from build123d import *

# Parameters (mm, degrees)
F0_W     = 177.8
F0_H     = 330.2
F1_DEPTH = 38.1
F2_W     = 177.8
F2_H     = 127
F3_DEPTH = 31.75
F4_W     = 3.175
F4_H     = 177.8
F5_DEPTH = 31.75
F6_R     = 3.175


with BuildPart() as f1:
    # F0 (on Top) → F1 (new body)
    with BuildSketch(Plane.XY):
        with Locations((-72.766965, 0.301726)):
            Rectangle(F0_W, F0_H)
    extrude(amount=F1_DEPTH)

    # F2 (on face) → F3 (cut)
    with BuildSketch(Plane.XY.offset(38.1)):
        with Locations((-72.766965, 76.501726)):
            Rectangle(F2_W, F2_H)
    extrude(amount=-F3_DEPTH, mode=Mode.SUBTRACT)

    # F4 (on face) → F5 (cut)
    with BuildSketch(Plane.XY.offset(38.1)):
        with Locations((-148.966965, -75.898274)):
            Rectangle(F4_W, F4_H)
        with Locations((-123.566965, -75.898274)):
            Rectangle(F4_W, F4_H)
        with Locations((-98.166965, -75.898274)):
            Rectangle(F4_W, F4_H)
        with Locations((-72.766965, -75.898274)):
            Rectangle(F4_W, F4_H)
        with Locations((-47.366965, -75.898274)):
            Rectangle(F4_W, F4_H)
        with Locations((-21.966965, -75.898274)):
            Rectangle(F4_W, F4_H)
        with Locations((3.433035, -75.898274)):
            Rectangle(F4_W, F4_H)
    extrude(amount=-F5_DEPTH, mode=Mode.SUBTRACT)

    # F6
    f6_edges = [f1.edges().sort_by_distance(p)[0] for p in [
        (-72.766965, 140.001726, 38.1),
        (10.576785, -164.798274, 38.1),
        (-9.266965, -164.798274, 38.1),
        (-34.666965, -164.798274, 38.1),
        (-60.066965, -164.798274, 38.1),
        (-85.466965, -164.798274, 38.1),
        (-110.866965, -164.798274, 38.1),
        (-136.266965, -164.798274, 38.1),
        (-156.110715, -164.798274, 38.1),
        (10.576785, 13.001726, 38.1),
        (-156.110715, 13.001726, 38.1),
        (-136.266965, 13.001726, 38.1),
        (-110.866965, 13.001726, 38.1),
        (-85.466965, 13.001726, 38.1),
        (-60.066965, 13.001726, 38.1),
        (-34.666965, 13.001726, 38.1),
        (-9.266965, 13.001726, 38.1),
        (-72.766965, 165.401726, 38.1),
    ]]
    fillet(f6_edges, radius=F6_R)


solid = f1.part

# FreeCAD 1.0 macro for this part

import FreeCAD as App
import Part
import Sketcher

V = App.Vector
Q = App.Units.Quantity


def edges_at(feature, points):
    """Names of the edges that pass closest to the given points."""
    edges = feature.Shape.Edges
    near = lambda p: min(range(len(edges)), key=lambda i: edges[i].distToShape(Part.Vertex(*p))[0])
    return sorted({f"Edge{near(p) + 1}" for p in points})

doc = App.newDocument("Part")
params = doc.addObject("Spreadsheet::Sheet", "Params")
for row, (alias, value) in enumerate([
    ("sketch1_width", "7 in"),
    ("sketch1_height", "13 in"),
    ("pad1_length", "1.5 in"),
    ("sketch2_width", "7 in"),
    ("sketch2_height", "5 in"),
    ("pocket1_length", "1.25 in"),
    ("sketch3_height", "7 in"),
    ("sketch3_width", "0.125 in"),
    ("pocket2_length", "1.25 in"),
    ("fillet_radius", "0.125 in"),
], start=1):
    params.set(f"A{row}", alias)
    params.set(f"B{row}", "=" + value)
    params.setAlias(f"B{row}", alias)

body = doc.addObject("PartDesign::Body", "Body")

# Sketch on XY plane
sketch1 = doc.addObject("Sketcher::SketchObject", "Sketch")
body.addObject(sketch1)
sketch1.AttachmentSupport = (doc.XY_Plane, [""])
sketch1.MapMode = "FlatFace"
sketch1.addGeometry([
    Part.LineSegment(V(-161.666965, 165.401726, 0), V(-161.666965, -164.798274, 0)),
    Part.LineSegment(V(-161.666965, -164.798274, 0), V(16.133035, -164.798274, 0)),
    Part.LineSegment(V(16.133035, -164.798274, 0), V(16.133035, 165.401726, 0)),
    Part.LineSegment(V(16.133035, 165.401726, 0), V(-161.666965, 165.401726, 0)),
], False)
sketch1.addConstraint([
    Sketcher.Constraint("Coincident", 0, 2, 1, 1),
    Sketcher.Constraint("Coincident", 1, 2, 2, 1),
    Sketcher.Constraint("Coincident", 2, 2, 3, 1),
    Sketcher.Constraint("Coincident", 3, 2, 0, 1),
    Sketcher.Constraint("Vertical", 0),
    Sketcher.Constraint("Horizontal", 1),
    Sketcher.Constraint("Vertical", 2),
    Sketcher.Constraint("Horizontal", 3),
    Sketcher.Constraint("DistanceX", 1, 1, 1, 2, Q("7 in")),
    Sketcher.Constraint("DistanceY", 0, 2, 0, 1, Q("13 in")),
    Sketcher.Constraint("DistanceX", 0, 2, -1, 1, Q("161.666965 mm")),
    Sketcher.Constraint("DistanceY", 0, 2, -1, 1, Q("164.798274 mm")),
])
sketch1.setExpression("Constraints[8]", "Params.sketch1_width")
sketch1.setExpression("Constraints[9]", "Params.sketch1_height")
pad1 = doc.addObject("PartDesign::Pad", "Pad")
body.addObject(pad1)
pad1.Profile = sketch1
pad1.setExpression("Length", "Params.pad1_length")

# Sketch on XY plane
sketch2 = doc.addObject("Sketcher::SketchObject", "Sketch001")
body.addObject(sketch2)
sketch2.AttachmentSupport = (doc.XY_Plane, [""])
sketch2.MapMode = "FlatFace"
sketch2.AttachmentOffset = App.Placement(V(0, 0, 1.5 * 25.4), App.Rotation())
sketch2.addGeometry([
    Part.LineSegment(V(-161.666965, 140.001726, 0), V(-161.666965, 13.001726, 0)),
    Part.LineSegment(V(-161.666965, 13.001726, 0), V(16.133035, 13.001726, 0)),
    Part.LineSegment(V(16.133035, 13.001726, 0), V(16.133035, 140.001726, 0)),
    Part.LineSegment(V(16.133035, 140.001726, 0), V(-161.666965, 140.001726, 0)),
], False)
sketch2.addConstraint([
    Sketcher.Constraint("Coincident", 0, 2, 1, 1),
    Sketcher.Constraint("Coincident", 1, 2, 2, 1),
    Sketcher.Constraint("Coincident", 2, 2, 3, 1),
    Sketcher.Constraint("Coincident", 3, 2, 0, 1),
    Sketcher.Constraint("Vertical", 0),
    Sketcher.Constraint("Horizontal", 1),
    Sketcher.Constraint("Vertical", 2),
    Sketcher.Constraint("Horizontal", 3),
    Sketcher.Constraint("DistanceX", 1, 1, 1, 2, Q("7 in")),
    Sketcher.Constraint("DistanceY", 0, 2, 0, 1, Q("5 in")),
    Sketcher.Constraint("DistanceX", 0, 2, -1, 1, Q("161.666965 mm")),
    Sketcher.Constraint("DistanceY", -1, 1, 0, 2, Q("13.001726 mm")),
])
sketch2.setExpression("Constraints[8]", "Params.sketch2_width")
sketch2.setExpression("Constraints[9]", "Params.sketch2_height")
pocket1 = doc.addObject("PartDesign::Pocket", "Pocket")
body.addObject(pocket1)
pocket1.Profile = sketch2
pocket1.setExpression("Length", "Params.pocket1_length")

# Sketch on XY plane
sketch3 = doc.addObject("Sketcher::SketchObject", "Sketch002")
body.addObject(sketch3)
sketch3.AttachmentSupport = (doc.XY_Plane, [""])
sketch3.MapMode = "FlatFace"
sketch3.AttachmentOffset = App.Placement(V(0, 0, 1.5 * 25.4), App.Rotation())
sketch3.addGeometry([
    Part.LineSegment(V(-150.554465, 13.001726, 0), V(-150.554465, -164.798274, 0)),  # 0
    Part.LineSegment(V(-150.554465, -164.798274, 0), V(-147.379465, -164.798274, 0)),  # 1
    Part.LineSegment(V(-147.379465, -164.798274, 0), V(-147.379465, 13.001726, 0)),  # 2
    Part.LineSegment(V(-147.379465, 13.001726, 0), V(-150.554465, 13.001726, 0)),  # 3
    Part.LineSegment(V(-125.154465, 13.001726, 0), V(-125.154465, -164.798274, 0)),  # 4
    Part.LineSegment(V(-125.154465, -164.798274, 0), V(-121.979465, -164.798274, 0)),  # 5
    Part.LineSegment(V(-121.979465, -164.798274, 0), V(-121.979465, 13.001726, 0)),  # 6
    Part.LineSegment(V(-121.979465, 13.001726, 0), V(-125.154465, 13.001726, 0)),  # 7
    Part.LineSegment(V(-99.754465, 13.001726, 0), V(-99.754465, -164.798274, 0)),  # 8
    Part.LineSegment(V(-99.754465, -164.798274, 0), V(-96.579465, -164.798274, 0)),  # 9
    Part.LineSegment(V(-96.579465, -164.798274, 0), V(-96.579465, 13.001726, 0)),  # 10
    Part.LineSegment(V(-96.579465, 13.001726, 0), V(-99.754465, 13.001726, 0)),  # 11
    Part.LineSegment(V(-74.354465, 13.001726, 0), V(-74.354465, -164.798274, 0)),  # 12
    Part.LineSegment(V(-74.354465, -164.798274, 0), V(-71.179465, -164.798274, 0)),  # 13
    Part.LineSegment(V(-71.179465, -164.798274, 0), V(-71.179465, 13.001726, 0)),  # 14
    Part.LineSegment(V(-71.179465, 13.001726, 0), V(-74.354465, 13.001726, 0)),  # 15
    Part.LineSegment(V(-48.954465, 13.001726, 0), V(-48.954465, -164.798274, 0)),  # 16
    Part.LineSegment(V(-48.954465, -164.798274, 0), V(-45.779465, -164.798274, 0)),  # 17
    Part.LineSegment(V(-45.779465, -164.798274, 0), V(-45.779465, 13.001726, 0)),  # 18
    Part.LineSegment(V(-45.779465, 13.001726, 0), V(-48.954465, 13.001726, 0)),  # 19
    Part.LineSegment(V(-23.554465, 13.001726, 0), V(-23.554465, -164.798274, 0)),  # 20
    Part.LineSegment(V(-23.554465, -164.798274, 0), V(-20.379465, -164.798274, 0)),  # 21
    Part.LineSegment(V(-20.379465, -164.798274, 0), V(-20.379465, 13.001726, 0)),  # 22
    Part.LineSegment(V(-20.379465, 13.001726, 0), V(-23.554465, 13.001726, 0)),  # 23
    Part.LineSegment(V(1.845535, 13.001726, 0), V(1.845535, -164.798274, 0)),  # 24
    Part.LineSegment(V(1.845535, -164.798274, 0), V(5.020535, -164.798274, 0)),  # 25
    Part.LineSegment(V(5.020535, -164.798274, 0), V(5.020535, 13.001726, 0)),  # 26
    Part.LineSegment(V(5.020535, 13.001726, 0), V(1.845535, 13.001726, 0)),  # 27
], False)
sketch3.addConstraint([
    Sketcher.Constraint("Coincident", 0, 2, 1, 1),
    Sketcher.Constraint("Coincident", 1, 2, 2, 1),
    Sketcher.Constraint("Coincident", 2, 2, 3, 1),
    Sketcher.Constraint("Coincident", 3, 2, 0, 1),
    Sketcher.Constraint("Coincident", 4, 2, 5, 1),
    Sketcher.Constraint("Coincident", 5, 2, 6, 1),
    Sketcher.Constraint("Coincident", 6, 2, 7, 1),
    Sketcher.Constraint("Coincident", 7, 2, 4, 1),
    Sketcher.Constraint("Coincident", 8, 2, 9, 1),
    Sketcher.Constraint("Coincident", 9, 2, 10, 1),
    Sketcher.Constraint("Coincident", 10, 2, 11, 1),
    Sketcher.Constraint("Coincident", 11, 2, 8, 1),
    Sketcher.Constraint("Coincident", 12, 2, 13, 1),
    Sketcher.Constraint("Coincident", 13, 2, 14, 1),
    Sketcher.Constraint("Coincident", 14, 2, 15, 1),
    Sketcher.Constraint("Coincident", 15, 2, 12, 1),
    Sketcher.Constraint("Coincident", 16, 2, 17, 1),
    Sketcher.Constraint("Coincident", 17, 2, 18, 1),
    Sketcher.Constraint("Coincident", 18, 2, 19, 1),
    Sketcher.Constraint("Coincident", 19, 2, 16, 1),
    Sketcher.Constraint("Coincident", 20, 2, 21, 1),
    Sketcher.Constraint("Coincident", 21, 2, 22, 1),
    Sketcher.Constraint("Coincident", 22, 2, 23, 1),
    Sketcher.Constraint("Coincident", 23, 2, 20, 1),
    Sketcher.Constraint("Coincident", 24, 2, 25, 1),
    Sketcher.Constraint("Coincident", 25, 2, 26, 1),
    Sketcher.Constraint("Coincident", 26, 2, 27, 1),
    Sketcher.Constraint("Coincident", 27, 2, 24, 1),
    Sketcher.Constraint("Vertical", 0),
    Sketcher.Constraint("Horizontal", 1),
    Sketcher.Constraint("Vertical", 2),
    Sketcher.Constraint("Horizontal", 3),
    Sketcher.Constraint("Vertical", 4),
    Sketcher.Constraint("Horizontal", 5),
    Sketcher.Constraint("Vertical", 6),
    Sketcher.Constraint("Horizontal", 7),
    Sketcher.Constraint("Vertical", 8),
    Sketcher.Constraint("Horizontal", 9),
    Sketcher.Constraint("Vertical", 10),
    Sketcher.Constraint("Horizontal", 11),
    Sketcher.Constraint("Vertical", 12),
    Sketcher.Constraint("Horizontal", 13),
    Sketcher.Constraint("Vertical", 14),
    Sketcher.Constraint("Horizontal", 15),
    Sketcher.Constraint("Vertical", 16),
    Sketcher.Constraint("Horizontal", 17),
    Sketcher.Constraint("Vertical", 18),
    Sketcher.Constraint("Horizontal", 19),
    Sketcher.Constraint("Vertical", 20),
    Sketcher.Constraint("Horizontal", 21),
    Sketcher.Constraint("Vertical", 22),
    Sketcher.Constraint("Horizontal", 23),
    Sketcher.Constraint("Vertical", 24),
    Sketcher.Constraint("Horizontal", 25),
    Sketcher.Constraint("Vertical", 26),
    Sketcher.Constraint("Horizontal", 27),
    Sketcher.Constraint("Horizontal", 1, 2, 4, 2),
    Sketcher.Constraint("Horizontal", 3, 2, 6, 2),
    Sketcher.Constraint("Horizontal", 5, 2, 8, 2),
    Sketcher.Constraint("Horizontal", 7, 2, 10, 2),
    Sketcher.Constraint("Horizontal", 9, 2, 12, 2),
    Sketcher.Constraint("Horizontal", 11, 2, 14, 2),
    Sketcher.Constraint("Horizontal", 13, 2, 16, 2),
    Sketcher.Constraint("Horizontal", 15, 2, 18, 2),
    Sketcher.Constraint("Horizontal", 17, 2, 20, 2),
    Sketcher.Constraint("Horizontal", 19, 2, 22, 2),
    Sketcher.Constraint("Horizontal", 21, 2, 24, 2),
    Sketcher.Constraint("Horizontal", 23, 2, 26, 2),
    Sketcher.Constraint("Equal", 3, 5),
    Sketcher.Constraint("Equal", 7, 9),
    Sketcher.Constraint("Equal", 11, 13),
    Sketcher.Constraint("Equal", 15, 17),
    Sketcher.Constraint("Equal", 19, 21),
    Sketcher.Constraint("Equal", 23, 25),
    Sketcher.Constraint("DistanceY", 0, 2, 0, 1, Q("7 in")),
    Sketcher.Constraint("DistanceX", 0, 2, 4, 2, Q("1 in")),
    Sketcher.Constraint("DistanceX", 4, 2, 8, 2, Q("1 in")),
    Sketcher.Constraint("DistanceX", 8, 2, 12, 2, Q("1 in")),
    Sketcher.Constraint("DistanceX", 12, 2, 16, 2, Q("1 in")),
    Sketcher.Constraint("DistanceX", 16, 2, 20, 2, Q("1 in")),
    Sketcher.Constraint("DistanceX", 20, 2, 24, 2, Q("1 in")),
    Sketcher.Constraint("DistanceX", 1, 1, 1, 2, Q("0.125 in")),
    Sketcher.Constraint("DistanceX", 0, 2, -1, 1, Q("150.554465 mm")),
    Sketcher.Constraint("DistanceY", 0, 2, -1, 1, Q("164.798274 mm")),
])
sketch3.setExpression("Constraints[74]", "Params.sketch3_height")
sketch3.setExpression("Constraints[81]", "Params.sketch3_width")
pocket2 = doc.addObject("PartDesign::Pocket", "Pocket001")
body.addObject(pocket2)
pocket2.Profile = sketch3
pocket2.setExpression("Length", "Params.pocket2_length")
doc.recompute()

fillet = doc.addObject("PartDesign::Fillet", "Fillet")
body.addObject(fillet)
fillet.Base = (pocket2, edges_at(pocket2, [
    (-72.767, 140.002, 38.1),
    (10.577, -164.798, 38.1),
    (-9.267, -164.798, 38.1),
    (-34.667, -164.798, 38.1),
    (-60.067, -164.798, 38.1),
    (-85.467, -164.798, 38.1),
    (-110.867, -164.798, 38.1),
    (-136.267, -164.798, 38.1),
    (-156.111, -164.798, 38.1),
    (10.577, 13.002, 38.1),
    (-156.111, 13.002, 38.1),
    (-136.267, 13.002, 38.1),
    (-110.867, 13.002, 38.1),
    (-85.467, 13.002, 38.1),
    (-60.067, 13.002, 38.1),
    (-34.667, 13.002, 38.1),
    (-9.267, 13.002, 38.1),
    (-72.767, 165.402, 38.1),
]))
fillet.setExpression("Radius", "Params.fillet_radius")

doc.recompute()
